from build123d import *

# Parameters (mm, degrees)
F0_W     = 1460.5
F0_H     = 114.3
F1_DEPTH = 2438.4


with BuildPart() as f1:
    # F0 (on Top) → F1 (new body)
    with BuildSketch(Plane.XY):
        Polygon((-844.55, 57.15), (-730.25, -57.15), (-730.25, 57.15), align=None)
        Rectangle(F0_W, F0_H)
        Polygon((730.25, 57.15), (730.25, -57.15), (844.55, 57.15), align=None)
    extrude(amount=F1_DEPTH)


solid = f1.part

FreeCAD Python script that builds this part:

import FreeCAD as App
import Part
import Sketcher
Q = App.Units.Quantity


def add_polygon(sketch, points):
    """Adds a closed chain of lines whose ends are joined by coincident constraints."""
    first, n = sketch.GeometryCount, len(points)
    for a, b in zip(points, points[1:] + points[:1]):
        sketch.addGeometry(Part.LineSegment(App.Vector(*a, 0), App.Vector(*b, 0)), False)
    for i in range(n):
        sketch.addConstraint(Sketcher.Constraint("Coincident", first + i, 2, first + (i + 1) % n, 1))

doc = App.newDocument("Part")
body = doc.addObject("PartDesign::Body", "Body")

sketch1 = doc.addObject("Sketcher::SketchObject", "Sketch")
body.addObject(sketch1)
sketch1.AttachmentSupport = (doc.XY_Plane, [""])
sketch1.MapMode = "FlatFace"
add_polygon(sketch1, [(-845, 57), (-730, -57), (730, -57), (845, 57)])
sketch1.addConstraint([
    Sketcher.Constraint("Horizontal", 1),
    Sketcher.Constraint("Horizontal", 3),
    Sketcher.Constraint("Perpendicular", 0, 2),
    Sketcher.Constraint("Equal", 0, 2),
    Sketcher.Constraint("DistanceX", 1, 1, 1, 2, Q("57.5 in")),
    Sketcher.Constraint("DistanceX", 3, 2, 3, 1, Q("66.5 in")),
    Sketcher.Constraint("DistanceX", 0, 2, -1, 1, Q("28.75 in")),
    Sketcher.Constraint("DistanceY", 0, 2, -1, 1, Q("2.25 in")),
])
pad1 = doc.addObject("PartDesign::Pad", "Pad")
body.addObject(pad1)
pad1.Profile = sketch1
pad1.Length = Q("96 in")

doc.recompute()
